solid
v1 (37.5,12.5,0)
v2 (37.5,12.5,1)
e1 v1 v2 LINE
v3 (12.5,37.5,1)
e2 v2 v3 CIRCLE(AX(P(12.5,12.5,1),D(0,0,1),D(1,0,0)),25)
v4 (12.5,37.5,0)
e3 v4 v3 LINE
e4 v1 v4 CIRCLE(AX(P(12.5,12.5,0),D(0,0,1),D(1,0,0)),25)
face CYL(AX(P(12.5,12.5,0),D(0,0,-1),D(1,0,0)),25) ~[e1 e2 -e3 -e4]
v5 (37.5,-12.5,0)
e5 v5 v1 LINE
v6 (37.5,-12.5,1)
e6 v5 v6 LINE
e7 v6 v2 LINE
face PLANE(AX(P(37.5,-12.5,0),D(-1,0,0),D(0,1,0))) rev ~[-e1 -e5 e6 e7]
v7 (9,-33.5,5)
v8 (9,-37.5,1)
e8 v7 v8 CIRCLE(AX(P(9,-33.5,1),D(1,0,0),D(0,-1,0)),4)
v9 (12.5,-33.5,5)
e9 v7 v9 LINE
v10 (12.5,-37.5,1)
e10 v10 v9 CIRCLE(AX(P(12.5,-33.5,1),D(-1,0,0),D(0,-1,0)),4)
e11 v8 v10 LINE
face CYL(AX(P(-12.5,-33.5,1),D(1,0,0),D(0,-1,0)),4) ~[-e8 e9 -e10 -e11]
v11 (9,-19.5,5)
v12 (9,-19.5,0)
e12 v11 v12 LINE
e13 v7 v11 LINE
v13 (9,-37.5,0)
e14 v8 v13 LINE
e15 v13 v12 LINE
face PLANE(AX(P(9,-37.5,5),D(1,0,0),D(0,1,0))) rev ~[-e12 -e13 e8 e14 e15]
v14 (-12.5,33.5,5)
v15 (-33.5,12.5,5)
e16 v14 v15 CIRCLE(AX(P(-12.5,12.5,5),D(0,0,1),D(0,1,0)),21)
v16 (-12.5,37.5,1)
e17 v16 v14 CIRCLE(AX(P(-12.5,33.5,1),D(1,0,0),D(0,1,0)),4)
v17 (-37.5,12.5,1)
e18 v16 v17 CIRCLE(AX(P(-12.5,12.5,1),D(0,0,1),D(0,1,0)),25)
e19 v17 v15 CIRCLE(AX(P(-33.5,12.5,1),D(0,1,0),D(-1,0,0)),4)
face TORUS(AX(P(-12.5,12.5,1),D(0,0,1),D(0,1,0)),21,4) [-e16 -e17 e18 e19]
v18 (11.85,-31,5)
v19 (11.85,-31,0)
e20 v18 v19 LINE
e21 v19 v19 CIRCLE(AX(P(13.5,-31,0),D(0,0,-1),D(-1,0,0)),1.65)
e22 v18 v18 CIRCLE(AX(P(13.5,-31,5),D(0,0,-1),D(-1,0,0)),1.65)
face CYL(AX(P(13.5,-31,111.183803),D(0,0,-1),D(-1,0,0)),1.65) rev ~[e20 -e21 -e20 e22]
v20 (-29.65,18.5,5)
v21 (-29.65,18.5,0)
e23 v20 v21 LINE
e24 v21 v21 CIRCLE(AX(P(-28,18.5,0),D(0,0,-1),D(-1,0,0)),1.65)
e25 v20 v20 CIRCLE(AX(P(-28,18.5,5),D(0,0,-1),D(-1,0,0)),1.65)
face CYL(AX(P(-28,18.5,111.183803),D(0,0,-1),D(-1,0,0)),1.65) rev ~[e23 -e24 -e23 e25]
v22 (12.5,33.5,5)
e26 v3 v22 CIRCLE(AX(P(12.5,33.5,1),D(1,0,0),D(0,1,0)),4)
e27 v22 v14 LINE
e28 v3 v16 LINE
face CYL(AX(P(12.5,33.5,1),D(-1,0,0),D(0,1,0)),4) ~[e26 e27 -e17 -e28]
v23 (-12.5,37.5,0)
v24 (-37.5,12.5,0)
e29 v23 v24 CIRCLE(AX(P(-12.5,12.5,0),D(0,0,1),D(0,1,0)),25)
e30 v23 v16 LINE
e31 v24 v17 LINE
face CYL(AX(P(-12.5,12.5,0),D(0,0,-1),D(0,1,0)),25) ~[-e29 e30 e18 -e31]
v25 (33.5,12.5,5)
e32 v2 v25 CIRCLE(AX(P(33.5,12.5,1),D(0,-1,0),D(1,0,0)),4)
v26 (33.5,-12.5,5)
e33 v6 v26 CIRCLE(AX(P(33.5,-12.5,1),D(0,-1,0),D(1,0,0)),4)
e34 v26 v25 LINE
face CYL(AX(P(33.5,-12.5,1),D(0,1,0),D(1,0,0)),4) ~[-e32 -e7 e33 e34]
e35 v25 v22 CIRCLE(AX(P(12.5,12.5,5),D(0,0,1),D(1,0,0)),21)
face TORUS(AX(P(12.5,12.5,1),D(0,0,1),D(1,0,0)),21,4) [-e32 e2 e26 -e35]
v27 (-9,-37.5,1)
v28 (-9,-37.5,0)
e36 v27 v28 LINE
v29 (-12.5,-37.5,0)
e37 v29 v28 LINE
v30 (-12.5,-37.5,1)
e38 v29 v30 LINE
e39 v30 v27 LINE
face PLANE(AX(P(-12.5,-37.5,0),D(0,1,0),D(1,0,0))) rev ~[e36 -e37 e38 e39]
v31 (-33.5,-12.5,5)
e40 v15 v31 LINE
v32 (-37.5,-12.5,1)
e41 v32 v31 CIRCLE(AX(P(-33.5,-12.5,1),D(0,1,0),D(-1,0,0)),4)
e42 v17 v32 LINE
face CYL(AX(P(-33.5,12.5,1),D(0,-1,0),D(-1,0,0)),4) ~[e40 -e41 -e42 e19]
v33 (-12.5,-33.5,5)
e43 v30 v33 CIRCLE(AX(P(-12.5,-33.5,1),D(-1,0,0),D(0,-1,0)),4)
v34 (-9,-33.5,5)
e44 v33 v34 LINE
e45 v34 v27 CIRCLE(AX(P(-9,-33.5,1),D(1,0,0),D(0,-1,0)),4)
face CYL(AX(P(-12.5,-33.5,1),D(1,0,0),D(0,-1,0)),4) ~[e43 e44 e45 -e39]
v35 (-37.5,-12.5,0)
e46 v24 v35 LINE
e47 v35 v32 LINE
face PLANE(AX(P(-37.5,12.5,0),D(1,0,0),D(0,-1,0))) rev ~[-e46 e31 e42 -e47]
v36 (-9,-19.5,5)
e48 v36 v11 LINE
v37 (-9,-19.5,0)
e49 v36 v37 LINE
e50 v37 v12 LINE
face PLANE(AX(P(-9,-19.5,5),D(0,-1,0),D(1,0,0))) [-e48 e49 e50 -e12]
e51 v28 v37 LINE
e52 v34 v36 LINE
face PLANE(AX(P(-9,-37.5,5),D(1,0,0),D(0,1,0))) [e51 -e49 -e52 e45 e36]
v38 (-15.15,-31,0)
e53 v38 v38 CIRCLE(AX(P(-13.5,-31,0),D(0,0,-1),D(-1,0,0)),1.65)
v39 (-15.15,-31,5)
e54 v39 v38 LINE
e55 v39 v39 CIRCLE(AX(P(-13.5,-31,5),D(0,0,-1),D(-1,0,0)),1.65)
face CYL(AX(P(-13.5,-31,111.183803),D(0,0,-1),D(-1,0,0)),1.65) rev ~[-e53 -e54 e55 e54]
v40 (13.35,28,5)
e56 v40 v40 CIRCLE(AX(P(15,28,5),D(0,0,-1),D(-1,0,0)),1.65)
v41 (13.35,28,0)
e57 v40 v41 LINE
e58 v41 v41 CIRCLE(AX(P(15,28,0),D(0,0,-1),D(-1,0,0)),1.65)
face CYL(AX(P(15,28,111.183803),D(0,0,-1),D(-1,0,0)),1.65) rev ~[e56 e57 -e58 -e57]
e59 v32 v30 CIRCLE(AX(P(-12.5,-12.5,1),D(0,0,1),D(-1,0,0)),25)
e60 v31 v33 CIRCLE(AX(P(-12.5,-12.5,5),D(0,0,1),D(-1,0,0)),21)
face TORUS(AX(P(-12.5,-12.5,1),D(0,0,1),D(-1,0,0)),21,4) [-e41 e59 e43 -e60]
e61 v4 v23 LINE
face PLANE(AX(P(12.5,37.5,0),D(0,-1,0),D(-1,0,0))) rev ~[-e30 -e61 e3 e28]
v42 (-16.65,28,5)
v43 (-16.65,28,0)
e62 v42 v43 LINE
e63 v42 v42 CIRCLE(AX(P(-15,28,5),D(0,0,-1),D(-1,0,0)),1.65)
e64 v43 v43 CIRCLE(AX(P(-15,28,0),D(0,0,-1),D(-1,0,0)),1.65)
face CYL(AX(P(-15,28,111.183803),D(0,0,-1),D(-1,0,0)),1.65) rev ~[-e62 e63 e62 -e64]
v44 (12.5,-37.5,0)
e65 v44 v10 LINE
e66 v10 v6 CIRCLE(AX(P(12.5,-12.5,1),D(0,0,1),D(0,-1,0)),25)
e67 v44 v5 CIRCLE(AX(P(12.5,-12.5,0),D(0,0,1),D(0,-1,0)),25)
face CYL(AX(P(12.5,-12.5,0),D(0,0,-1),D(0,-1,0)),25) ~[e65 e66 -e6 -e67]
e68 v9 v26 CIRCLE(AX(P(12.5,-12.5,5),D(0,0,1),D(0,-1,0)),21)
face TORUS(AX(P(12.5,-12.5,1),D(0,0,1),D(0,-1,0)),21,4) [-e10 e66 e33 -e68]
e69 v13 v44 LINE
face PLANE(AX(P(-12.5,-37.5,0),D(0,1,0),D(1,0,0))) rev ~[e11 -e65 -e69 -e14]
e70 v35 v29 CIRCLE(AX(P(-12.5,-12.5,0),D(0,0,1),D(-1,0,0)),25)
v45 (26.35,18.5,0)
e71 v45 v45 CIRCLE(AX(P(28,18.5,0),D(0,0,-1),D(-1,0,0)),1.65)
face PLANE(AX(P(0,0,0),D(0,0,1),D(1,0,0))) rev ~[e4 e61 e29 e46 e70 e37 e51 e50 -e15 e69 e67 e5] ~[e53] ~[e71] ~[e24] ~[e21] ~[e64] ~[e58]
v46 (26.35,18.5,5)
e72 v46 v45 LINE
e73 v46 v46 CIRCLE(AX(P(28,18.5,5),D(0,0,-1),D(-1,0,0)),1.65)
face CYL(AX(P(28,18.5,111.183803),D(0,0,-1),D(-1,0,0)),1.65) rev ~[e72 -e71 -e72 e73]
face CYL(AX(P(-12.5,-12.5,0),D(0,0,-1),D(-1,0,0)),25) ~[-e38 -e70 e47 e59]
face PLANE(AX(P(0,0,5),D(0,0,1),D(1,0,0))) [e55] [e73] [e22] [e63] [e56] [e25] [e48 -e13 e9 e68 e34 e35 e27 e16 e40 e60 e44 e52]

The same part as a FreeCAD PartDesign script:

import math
import FreeCAD as App
import Part
import Sketcher

V = App.Vector


def edges_at(feature, points):
    """Names of the edges that pass closest to the given points."""
    edges = feature.Shape.Edges
    near = lambda p: min(range(len(edges)), key=lambda i: edges[i].distToShape(Part.Vertex(*p))[0])
    return sorted({f"Edge{near(p) + 1}" for p in points})


def add_polygon(sketch, points):
    """Adds a closed chain of lines whose ends are joined by coincident constraints."""
    first, n = sketch.GeometryCount, len(points)
    for a, b in zip(points, points[1:] + points[:1]):
        sketch.addGeometry(Part.LineSegment(App.Vector(*a, 0), App.Vector(*b, 0)), False)
    for i in range(n):
        sketch.addConstraint(Sketcher.Constraint("Coincident", first + i, 2, first + (i + 1) % n, 1))

doc = App.newDocument("Part")
body = doc.addObject("PartDesign::Body", "Body")

# Sketch on XY plane
sketch1 = doc.addObject("Sketcher::SketchObject", "Sketch")
body.addObject(sketch1)
sketch1.AttachmentSupport = (doc.XY_Plane, [""])
sketch1.MapMode = "FlatFace"
sketch1.addGeometry(Part.LineSegment(V(12, 38, 0), V(-12, 38, 0)), False)
sketch1.addGeometry(Part.ArcOfCircle(Part.Circle(V(-12, 12, 0), V(0, 0, 1), 25), math.radians(90), math.radians(180)), False)
sketch1.addGeometry(Part.LineSegment(V(-38, 12, 0), V(-38, -12, 0)), False)
sketch1.addGeometry(Part.ArcOfCircle(Part.Circle(V(-12, -12, 0), V(0, 0, 1), 25), math.radians(180), math.radians(270)), False)
sketch1.addGeometry(Part.LineSegment(V(-12, -38, 0), V(12, -38, 0)), False)
sketch1.addGeometry(Part.ArcOfCircle(Part.Circle(V(12, -12, 0), V(0, 0, 1), 25), math.radians(-90), math.radians(0)), False)
sketch1.addGeometry(Part.LineSegment(V(38, -12, 0), V(38, 12, 0)), False)
sketch1.addGeometry(Part.ArcOfCircle(Part.Circle(V(12, 12, 0), V(0, 0, 1), 25), math.radians(0), math.radians(90)), False)
sketch1.addConstraint(Sketcher.Constraint("Tangent", 0, 2, 1, 1))
sketch1.addConstraint(Sketcher.Constraint("Tangent", 1, 2, 2, 1))
sketch1.addConstraint(Sketcher.Constraint("Tangent", 2, 2, 3, 1))
sketch1.addConstraint(Sketcher.Constraint("Tangent", 3, 2, 4, 1))
sketch1.addConstraint(Sketcher.Constraint("Tangent", 4, 2, 5, 1))
sketch1.addConstraint(Sketcher.Constraint("Tangent", 5, 2, 6, 1))
sketch1.addConstraint(Sketcher.Constraint("Tangent", 6, 2, 7, 1))
sketch1.addConstraint(Sketcher.Constraint("Tangent", 7, 2, 0, 1))
sketch1.addConstraint(Sketcher.Constraint("Horizontal", 0))
sketch1.addConstraint(Sketcher.Constraint("Vertical", 2))
sketch1.addConstraint(Sketcher.Constraint("Horizontal", 4))
sketch1.addConstraint(Sketcher.Constraint("Vertical", 6))
sketch1.addConstraint(Sketcher.Constraint("Equal", 1, 3))
sketch1.addConstraint(Sketcher.Constraint("Equal", 3, 5))
sketch1.addConstraint(Sketcher.Constraint("Equal", 5, 7))
sketch1.addConstraint(Sketcher.Constraint("Symmetric", 1, 3, 5, 3, -1, 1))
sketch1.addConstraint(Sketcher.Constraint("Equal", 4, 2))
sketch1.addConstraint(Sketcher.Constraint("Radius", 1, 25.0))
sketch1.addConstraint(Sketcher.Constraint("DistanceX", 0, 2, 0, 1, 25.0))
pad1 = doc.addObject("PartDesign::Pad", "Pad")
body.addObject(pad1)
pad1.Profile = sketch1
pad1.Length = 5
doc.recompute()

fillet = doc.addObject("PartDesign::Fillet", "Fillet")
body.addObject(fillet)
fillet.Base = (pad1, edges_at(pad1, [
    (37.5, 0, 5),
    (30.178, 30.178, 5),
    (0, 37.5, 5),
    (-30.178, 30.178, 5),
    (-37.5, 0, 5),
    (-30.178, -30.178, 5),
    (0, -37.5, 5),
    (30.178, -30.178, 5),
]))
fillet.Radius = 4

# Sketch on XY plane
sketch2 = doc.addObject("Sketcher::SketchObject", "Sketch001")
body.addObject(sketch2)
sketch2.AttachmentSupport = (doc.XY_Plane, [""])
sketch2.MapMode = "FlatFace"
sketch2.AttachmentOffset = App.Placement(V(0, 0, 5), App.Rotation())
sketch2.addGeometry(Part.Circle(V(-28, 18.5, 0), V(0, 0, 1), 1.6), False)
sketch2.addGeometry(Part.Circle(V(28, 18.5, 0), V(0, 0, 1), 1.6), False)
sketch2.addGeometry(Part.Circle(V(-13.5, -31, 0), V(0, 0, 1), 1.6), False)
sketch2.addGeometry(Part.Circle(V(13.5, -31, 0), V(0, 0, 1), 1.6), False)
sketch2.addConstraint(Sketcher.Constraint("Equal", 0, 1))
sketch2.addConstraint(Sketcher.Constraint("Equal", 1, 2))
sketch2.addConstraint(Sketcher.Constraint("Equal", 2, 3))
sketch2.addConstraint(Sketcher.Constraint("Symmetric", 0, 3, 1, 3, -2))
sketch2.addConstraint(Sketcher.Constraint("Symmetric", 2, 3, 3, 3, -2))
sketch2.addConstraint(Sketcher.Constraint("Diameter", 0, 3.3))
sketch2.addConstraint(Sketcher.Constraint("DistanceX", 0, 3, -1, 1, 28.0))
sketch2.addConstraint(Sketcher.Constraint("DistanceY", 2, 3, -1, 1, 31.0))
sketch2.addConstraint(Sketcher.Constraint("DistanceX", 2, 3, 3, 3, 27.0))
sketch2.addConstraint(Sketcher.Constraint("DistanceY", -1, 1, 0, 3, 18.5))
doc.recompute()
hole = doc.addObject("PartDesign::Hole", "Hole")
body.addObject(hole)
hole.Profile = sketch2
hole.ThreadType = "None"
hole.Diameter = 3.3
hole.DepthType = "ThroughAll"

# Sketch on XY plane
sketch3 = doc.addObject("Sketcher::SketchObject", "Sketch002")
body.addObject(sketch3)
sketch3.AttachmentSupport = (doc.XY_Plane, [""])
sketch3.MapMode = "FlatFace"
sketch3.AttachmentOffset = App.Placement(V(0, 0, 5), App.Rotation())
add_polygon(sketch3, [(-9, -20), (-9, -38), (9, -38), (9, -20)])  # lines 0-3
sketch3.addConstraint(Sketcher.Constraint("Vertical", 0))
sketch3.addConstraint(Sketcher.Constraint("Horizontal", 1))
sketch3.addConstraint(Sketcher.Constraint("Vertical", 2))
sketch3.addConstraint(Sketcher.Constraint("Horizontal", 3))
sketch3.addConstraint(Sketcher.Constraint("Equal", 3, 0))
sketch3.addConstraint(Sketcher.Constraint("DistanceX", 1, 1, 1, 2, 18.0))
sketch3.addConstraint(Sketcher.Constraint("DistanceX", 0, 2, -1, 1, 9.0))
sketch3.addConstraint(Sketcher.Constraint("DistanceY", 0, 2, -1, 1, 37.5))
pocket1 = doc.addObject("PartDesign::Pocket", "Pocket")
body.addObject(pocket1)
pocket1.Profile = sketch3
pocket1.Type = "ThroughAll"

# Sketch on XY plane
sketch4 = doc.addObject("Sketcher::SketchObject", "Sketch003")
body.addObject(sketch4)
sketch4.AttachmentSupport = (doc.XY_Plane, [""])
sketch4.MapMode = "FlatFace"
sketch4.AttachmentOffset = App.Placement(V(0, 0, 5), App.Rotation())
sketch4.addGeometry(Part.Circle(V(-15, 28, 0), V(0, 0, 1), 1.6), False)
sketch4.addGeometry(Part.Circle(V(15, 28, 0), V(0, 0, 1), 1.6), False)
sketch4.addConstraint(Sketcher.Constraint("Equal", 0, 1))
sketch4.addConstraint(Sketcher.Constraint("Symmetric", 0, 3, 1, 3, -2))
sketch4.addConstraint(Sketcher.Constraint("Diameter", 0, 3.3))
sketch4.addConstraint(Sketcher.Constraint("DistanceX", 0, 3, -1, 1, 15.0))
sketch4.addConstraint(Sketcher.Constraint("DistanceY", -1, 1, 0, 3, 28.0))
doc.recompute()
hole2 = doc.addObject("PartDesign::Hole", "Hole001")
body.addObject(hole2)
hole2.Profile = sketch4
hole2.ThreadType = "None"
hole2.Diameter = 3.3
hole2.DepthType = "ThroughAll"

doc.recompute()
